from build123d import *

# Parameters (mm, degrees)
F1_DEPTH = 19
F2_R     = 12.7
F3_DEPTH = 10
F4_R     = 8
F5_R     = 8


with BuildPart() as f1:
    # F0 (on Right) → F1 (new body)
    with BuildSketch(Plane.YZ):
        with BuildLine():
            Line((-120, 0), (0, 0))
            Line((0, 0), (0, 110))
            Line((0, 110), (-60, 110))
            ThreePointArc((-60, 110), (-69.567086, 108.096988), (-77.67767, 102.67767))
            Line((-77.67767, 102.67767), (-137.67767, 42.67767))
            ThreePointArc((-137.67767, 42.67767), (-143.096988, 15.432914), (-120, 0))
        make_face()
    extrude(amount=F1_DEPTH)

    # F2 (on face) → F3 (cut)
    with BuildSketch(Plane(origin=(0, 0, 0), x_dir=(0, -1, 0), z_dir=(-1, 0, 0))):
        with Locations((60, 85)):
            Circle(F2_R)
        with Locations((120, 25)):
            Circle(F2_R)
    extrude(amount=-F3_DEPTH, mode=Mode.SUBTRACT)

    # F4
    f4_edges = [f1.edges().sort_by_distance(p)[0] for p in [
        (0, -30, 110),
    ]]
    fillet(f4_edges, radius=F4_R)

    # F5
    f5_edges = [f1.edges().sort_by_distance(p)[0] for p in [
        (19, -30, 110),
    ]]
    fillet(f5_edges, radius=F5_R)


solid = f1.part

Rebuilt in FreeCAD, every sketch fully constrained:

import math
import FreeCAD as App
import Part
import Sketcher

V = App.Vector
Q = App.Units.Quantity


def edges_at(feature, points):
    """Names of the edges that pass closest to the given points."""
    edges = feature.Shape.Edges
    near = lambda p: min(range(len(edges)), key=lambda i: edges[i].distToShape(Part.Vertex(*p))[0])
    return sorted({f"Edge{near(p) + 1}" for p in points})

doc = App.newDocument("Part")
params = doc.addObject("Spreadsheet::Sheet", "Params")
for row, (alias, value) in enumerate([
    ("sketch1_radius", "25.000001 mm"),
    ("sketch1_width", "120 mm"),
    ("sketch1_width2", "60 mm"),
    ("sketch1_height", "110 mm"),
    ("pad1_length", "19 mm"),
    ("sketch2_diameter", "25.4 mm"),
    ("pocket1_length", "10 mm"),
    ("fillet_radius", "8 mm"),
    ("fillet2_radius", "8 mm"),
], start=1):
    params.set(f"A{row}", alias)
    params.set(f"B{row}", "=" + value)
    params.setAlias(f"B{row}", alias)

body = doc.addObject("PartDesign::Body", "Body")

# Sketch on YZ plane
sketch1 = doc.addObject("Sketcher::SketchObject", "Sketch")
body.addObject(sketch1)
sketch1.AttachmentSupport = (doc.YZ_Plane, [""])
sketch1.MapMode = "FlatFace"
sketch1.addGeometry([
    Part.LineSegment(V(-120, 0, 0), V(0, 0, 0)),  # 0
    Part.LineSegment(V(0, 0, 0), V(0, 110, 0)),  # 1
    Part.LineSegment(V(0, 110, 0), V(-60, 110, 0)),  # 2
    Part.ArcOfCircle(Part.Circle(V(-60, 85, 0), V(0, 0, 1), 25), math.radians(90), math.radians(135)),  # 3
    Part.LineSegment(V(-78, 103, 0), V(-138, 43, 0)),  # 4
    Part.ArcOfCircle(Part.Circle(V(-120, 25, 0), V(0, 0, 1), 25), math.radians(135), math.radians(270)),  # 5
], False)
sketch1.addConstraint([
    Sketcher.Constraint("Coincident", 0, 2, 1, 1),
    Sketcher.Constraint("Coincident", 1, 2, 2, 1),
    Sketcher.Constraint("Tangent", 2, 2, 3, 1),
    Sketcher.Constraint("Tangent", 3, 2, 4, 1),
    Sketcher.Constraint("Tangent", 4, 2, 5, 1),
    Sketcher.Constraint("Tangent", 5, 2, 0, 1),
    Sketcher.Constraint("Horizontal", 0),
    Sketcher.Constraint("Vertical", 1),
    Sketcher.Constraint("Horizontal", 2),
    Sketcher.Constraint("Coincident", 0, 2, -1, 1),
    Sketcher.Constraint("Radius", 5, 25.000001),
    Sketcher.Constraint("DistanceX", 0, 1, 0, 2, 120.0),
    Sketcher.Constraint("DistanceX", 2, 2, 2, 1, 60.0),
    Sketcher.Constraint("DistanceY", 1, 1, 1, 2, 110.0),
    Sketcher.Constraint("Angle", 4, Q("-135 deg")),
])
sketch1.setExpression("Constraints[10]", "Params.sketch1_radius")
sketch1.setExpression("Constraints[11]", "Params.sketch1_width")
sketch1.setExpression("Constraints[12]", "Params.sketch1_width2")
sketch1.setExpression("Constraints[13]", "Params.sketch1_height")
pad1 = doc.addObject("PartDesign::Pad", "Pad")
body.addObject(pad1)
pad1.Profile = sketch1
pad1.setExpression("Length", "Params.pad1_length")

# Sketch on YZ plane
sketch2 = doc.addObject("Sketcher::SketchObject", "Sketch001")
body.addObject(sketch2)
sketch2.AttachmentSupport = (doc.YZ_Plane, [""])
sketch2.MapMode = "FlatFace"
sketch2.addGeometry([
    Part.Circle(V(-60, 85, 0), V(0, 0, 1), 13),
    Part.Circle(V(-120, 25, 0), V(0, 0, 1), 13),
], False)
sketch2.addConstraint([
    Sketcher.Constraint("Equal", 0, 1),
    Sketcher.Constraint("Diameter", 0, 25.4),
    Sketcher.Constraint("DistanceX", 0, 3, -1, 1, 60.0),
    Sketcher.Constraint("DistanceY", -1, 1, 0, 3, 85.0),
    Sketcher.Constraint("DistanceX", 1, 3, -1, 1, 120.0),
    Sketcher.Constraint("DistanceY", -1, 1, 1, 3, 25.0),
])
sketch2.setExpression("Constraints[1]", "Params.sketch2_diameter")
pocket1 = doc.addObject("PartDesign::Pocket", "Pocket")
body.addObject(pocket1)
pocket1.Profile = sketch2
pocket1.setExpression("Length", "Params.pocket1_length")
pocket1.Reversed = True
doc.recompute()

fillet = doc.addObject("PartDesign::Fillet", "Fillet")
body.addObject(fillet)
fillet.Base = (pocket1, edges_at(pocket1, [(0, -30, 110)]))
fillet.setExpression("Radius", "Params.fillet_radius")
doc.recompute()

fillet2 = doc.addObject("PartDesign::Fillet", "Fillet001")
body.addObject(fillet2)
fillet2.Base = (fillet, edges_at(fillet, [(19, -30, 110)]))
fillet2.setExpression("Radius", "Params.fillet2_radius")

doc.recompute()
